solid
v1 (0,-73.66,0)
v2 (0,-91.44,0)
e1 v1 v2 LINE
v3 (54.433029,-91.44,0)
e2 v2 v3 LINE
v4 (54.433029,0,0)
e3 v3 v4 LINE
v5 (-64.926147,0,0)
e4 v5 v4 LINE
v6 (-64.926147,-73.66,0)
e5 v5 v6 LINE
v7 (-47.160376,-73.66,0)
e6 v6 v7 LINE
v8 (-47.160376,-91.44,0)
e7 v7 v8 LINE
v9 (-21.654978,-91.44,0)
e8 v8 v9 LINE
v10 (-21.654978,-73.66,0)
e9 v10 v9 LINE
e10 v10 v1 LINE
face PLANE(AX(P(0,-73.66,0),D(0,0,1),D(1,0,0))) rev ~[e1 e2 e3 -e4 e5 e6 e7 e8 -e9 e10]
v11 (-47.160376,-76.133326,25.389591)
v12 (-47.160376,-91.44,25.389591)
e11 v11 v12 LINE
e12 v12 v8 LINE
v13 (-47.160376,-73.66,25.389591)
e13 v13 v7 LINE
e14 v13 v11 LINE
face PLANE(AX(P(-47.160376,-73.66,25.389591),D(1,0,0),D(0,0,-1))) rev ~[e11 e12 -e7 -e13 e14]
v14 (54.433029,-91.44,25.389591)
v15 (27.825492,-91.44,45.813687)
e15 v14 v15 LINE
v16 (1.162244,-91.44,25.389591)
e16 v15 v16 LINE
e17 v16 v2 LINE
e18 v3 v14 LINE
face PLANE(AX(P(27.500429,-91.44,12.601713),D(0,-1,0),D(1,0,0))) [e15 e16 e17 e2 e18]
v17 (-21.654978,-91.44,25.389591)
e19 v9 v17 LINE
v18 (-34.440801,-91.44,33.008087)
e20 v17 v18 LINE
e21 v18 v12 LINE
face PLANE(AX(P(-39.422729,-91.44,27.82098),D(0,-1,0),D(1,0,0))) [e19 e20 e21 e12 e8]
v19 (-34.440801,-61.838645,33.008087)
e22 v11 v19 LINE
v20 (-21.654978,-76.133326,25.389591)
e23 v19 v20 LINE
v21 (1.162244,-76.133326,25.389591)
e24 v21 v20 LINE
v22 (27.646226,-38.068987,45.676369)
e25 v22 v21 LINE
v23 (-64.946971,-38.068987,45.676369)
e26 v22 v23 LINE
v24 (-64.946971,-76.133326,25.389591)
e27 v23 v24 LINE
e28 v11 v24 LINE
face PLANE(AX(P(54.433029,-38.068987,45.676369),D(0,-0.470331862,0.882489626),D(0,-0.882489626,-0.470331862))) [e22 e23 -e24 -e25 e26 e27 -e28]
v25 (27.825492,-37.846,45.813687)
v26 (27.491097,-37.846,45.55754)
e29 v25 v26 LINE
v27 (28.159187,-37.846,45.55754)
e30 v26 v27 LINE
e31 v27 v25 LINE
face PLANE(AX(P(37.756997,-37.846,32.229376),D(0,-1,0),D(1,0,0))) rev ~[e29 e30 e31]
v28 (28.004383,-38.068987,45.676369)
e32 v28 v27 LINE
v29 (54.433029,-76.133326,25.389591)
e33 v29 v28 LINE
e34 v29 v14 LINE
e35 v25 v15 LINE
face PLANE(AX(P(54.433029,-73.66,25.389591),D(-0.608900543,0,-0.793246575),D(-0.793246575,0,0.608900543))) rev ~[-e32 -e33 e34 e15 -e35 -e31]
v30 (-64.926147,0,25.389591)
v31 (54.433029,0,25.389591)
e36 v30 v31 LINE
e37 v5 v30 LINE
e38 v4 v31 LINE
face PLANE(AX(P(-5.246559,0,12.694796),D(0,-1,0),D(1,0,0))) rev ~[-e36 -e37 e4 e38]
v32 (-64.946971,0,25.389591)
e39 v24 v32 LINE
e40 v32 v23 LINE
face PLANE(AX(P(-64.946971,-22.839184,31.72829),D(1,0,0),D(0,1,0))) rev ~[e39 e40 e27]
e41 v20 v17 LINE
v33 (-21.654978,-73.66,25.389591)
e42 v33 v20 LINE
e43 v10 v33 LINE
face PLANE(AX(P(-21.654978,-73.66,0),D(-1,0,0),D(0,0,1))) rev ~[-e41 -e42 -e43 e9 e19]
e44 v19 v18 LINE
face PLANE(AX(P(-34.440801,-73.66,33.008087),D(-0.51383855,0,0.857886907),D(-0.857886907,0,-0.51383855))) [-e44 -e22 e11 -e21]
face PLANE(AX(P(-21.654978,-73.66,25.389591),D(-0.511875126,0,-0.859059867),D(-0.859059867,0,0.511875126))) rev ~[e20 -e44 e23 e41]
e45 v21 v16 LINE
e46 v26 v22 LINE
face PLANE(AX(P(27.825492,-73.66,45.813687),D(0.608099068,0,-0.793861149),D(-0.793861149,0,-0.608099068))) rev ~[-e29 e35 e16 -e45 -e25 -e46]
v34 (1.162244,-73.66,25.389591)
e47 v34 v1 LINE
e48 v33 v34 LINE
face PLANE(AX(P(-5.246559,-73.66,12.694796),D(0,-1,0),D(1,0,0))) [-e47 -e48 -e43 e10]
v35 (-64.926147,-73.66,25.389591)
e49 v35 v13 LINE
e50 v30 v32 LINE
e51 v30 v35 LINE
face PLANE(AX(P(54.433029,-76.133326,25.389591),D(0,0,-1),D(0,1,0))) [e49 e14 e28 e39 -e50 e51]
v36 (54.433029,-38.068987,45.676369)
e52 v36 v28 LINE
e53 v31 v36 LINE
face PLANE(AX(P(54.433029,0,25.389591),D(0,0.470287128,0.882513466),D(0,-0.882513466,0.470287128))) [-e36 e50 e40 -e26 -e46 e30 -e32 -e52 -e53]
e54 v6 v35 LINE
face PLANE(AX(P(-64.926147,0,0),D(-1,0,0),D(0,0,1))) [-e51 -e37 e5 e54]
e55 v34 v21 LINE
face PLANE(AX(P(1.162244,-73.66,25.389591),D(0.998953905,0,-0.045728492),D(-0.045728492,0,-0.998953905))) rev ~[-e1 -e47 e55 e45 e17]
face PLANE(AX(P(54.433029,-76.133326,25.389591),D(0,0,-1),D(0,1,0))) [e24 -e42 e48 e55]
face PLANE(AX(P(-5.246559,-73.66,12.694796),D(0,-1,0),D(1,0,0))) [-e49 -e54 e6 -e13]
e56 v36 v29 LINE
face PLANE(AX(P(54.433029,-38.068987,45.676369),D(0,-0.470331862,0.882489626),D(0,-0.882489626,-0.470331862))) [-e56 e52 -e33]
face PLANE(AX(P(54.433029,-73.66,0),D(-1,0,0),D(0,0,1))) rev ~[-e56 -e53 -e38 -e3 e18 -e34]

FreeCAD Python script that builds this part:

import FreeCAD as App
import Part
import Sketcher
from FreeCAD import Vector
Q = App.Units.Quantity

doc = App.newDocument("Part")
body = doc.addObject("PartDesign::Body", "Body")

# Sketch on XZ plane
sketch1 = body.newObject("Sketcher::SketchObject", "Sketch")
sketch1.AttachmentSupport = (doc.getObject("XZ_Plane"), [""])
sketch1.MapMode = "FlatFace"
sketch1.addGeometry([
    Part.LineSegment(Vector(-65, 25, 0), Vector(-65, 0, 0)),
    Part.LineSegment(Vector(-65, 0, 0), Vector(54, 0, 0)),
    Part.LineSegment(Vector(54, 0, 0), Vector(54, 25, 0)),
    Part.LineSegment(Vector(54, 25, 0), Vector(-65, 25, 0)),
], False)
sketch1.addConstraint([
    Sketcher.Constraint("Coincident", 0, 2, 1, 1),
    Sketcher.Constraint("Coincident", 1, 2, 2, 1),
    Sketcher.Constraint("Coincident", 2, 2, 3, 1),
    Sketcher.Constraint("Coincident", 3, 2, 0, 1),
    Sketcher.Constraint("Vertical", 0),
    Sketcher.Constraint("Horizontal", 1),
    Sketcher.Constraint("Vertical", 2),
    Sketcher.Constraint("Horizontal", 3),
    Sketcher.Constraint("PointOnObject", 0, 2, -1),
    Sketcher.Constraint("DistanceY", 0, 2, 0, 1, Q("25.389591 mm")),
    Sketcher.Constraint("DistanceX", 1, 1, 1, 2, Q("119.359177 mm")),
    Sketcher.Constraint("DistanceX", -1, 1, 1, 2, Q("54.433029 mm")),
])
pad1 = body.newObject("PartDesign::Pad", "Pad")
pad1.Profile = sketch1
pad1.Length = Q("2.9 in")

# Sketch on YZ plane
sketch2 = body.newObject("Sketcher::SketchObject", "Sketch001")
sketch2.AttachmentSupport = (doc.getObject("YZ_Plane"), [""])
sketch2.MapMode = "FlatFace"
sketch2.AttachmentOffset = App.Placement(Vector(0, 0, 54.433029), App.Rotation())
sketch2.addGeometry([
    Part.LineSegment(Vector(0, 25, 0), Vector(-38, 46, 0)),
    Part.LineSegment(Vector(-38, 46, 0), Vector(-76, 25, 0)),
    Part.LineSegment(Vector(-76, 25, 0), Vector(0, 25, 0)),
], False)
sketch2.addConstraint([
    Sketcher.Constraint("Coincident", 0, 2, 1, 1),
    Sketcher.Constraint("Coincident", 1, 2, 2, 1),
    Sketcher.Constraint("Coincident", 2, 2, 0, 1),
    Sketcher.Constraint("Horizontal", 2),
    Sketcher.Constraint("PointOnObject", 2, 2, -2),
    Sketcher.Constraint("Distance", 1, Q("43.132902 mm")),
    Sketcher.Constraint("DistanceX", 2, 1, 2, 2, Q("76.133326 mm")),
    Sketcher.Constraint("DistanceY", -1, 1, 0, 2, Q("45.676369 mm")),
    Sketcher.Constraint("DistanceY", -1, 1, 1, 2, Q("25.389591 mm")),
])
pad2 = body.newObject("PartDesign::Pad", "Pad001")
pad2.Profile = sketch2
pad2.Length = Q("4.7 in")
pad2.Reversed = True

# Sketch on XZ plane
sketch3 = body.newObject("Sketcher::SketchObject", "Sketch002")
sketch3.AttachmentSupport = (doc.getObject("XZ_Plane"), [""])
sketch3.MapMode = "FlatFace"
sketch3.AttachmentOffset = App.Placement(Vector(0, 0, 2.9 * 25.4), App.Rotation())
sketch3.addGeometry([
    Part.LineSegment(Vector(-22, 25, 0), Vector(-34, 33, 0)),  # 0
    Part.LineSegment(Vector(-34, 33, 0), Vector(-47, 25, 0)),  # 1
    Part.LineSegment(Vector(-47, 25, 0), Vector(-22, 25, 0)),  # 2
    Part.LineSegment(Vector(54, 25, 0), Vector(28, 46, 0)),  # 3
    Part.LineSegment(Vector(28, 46, 0), Vector(1, 25, 0)),  # 4
    Part.LineSegment(Vector(1, 25, 0), Vector(54, 25, 0)),  # 5
], False)
sketch3.addConstraint([
    Sketcher.Constraint("Coincident", 0, 2, 1, 1),
    Sketcher.Constraint("Coincident", 1, 2, 2, 1),
    Sketcher.Constraint("Coincident", 2, 2, 0, 1),
    Sketcher.Constraint("Coincident", 3, 2, 4, 1),
    Sketcher.Constraint("Coincident", 4, 2, 5, 1),
    Sketcher.Constraint("Coincident", 5, 2, 3, 1),
    Sketcher.Constraint("Horizontal", 2),
    Sketcher.Constraint("Horizontal", 5),
    Sketcher.Constraint("Horizontal", 2, 2, 4, 2),
    Sketcher.Constraint("DistanceX", 0, 2, -1, 1, Q("34.440801 mm")),
    Sketcher.Constraint("DistanceY", 0, 2, 3, 2, Q("12.8056 mm")),
    Sketcher.Constraint("Distance", 3, Q("33.542581 mm")),
    Sketcher.Constraint("Distance", 4, Q("33.58679 mm")),
    Sketcher.Constraint("DistanceX", 2, 1, 2, 2, Q("25.505397 mm")),
    Sketcher.Constraint("DistanceX", 5, 1, 5, 2, Q("53.270786 mm")),
    Sketcher.Constraint("DistanceY", -1, 1, 1, 2, Q("25.389591 mm")),
    Sketcher.Constraint("DistanceX", 2, 2, -1, 1, Q("21.654978 mm")),
    Sketcher.Constraint("DistanceX", -1, 1, 3, 2, Q("27.825492 mm")),
])
pad3 = body.newObject("PartDesign::Pad", "Pad002")
pad3.Profile = sketch3
pad3.Length = Q("1.41 in")
pad3.Reversed = True

# Sketch on XZ plane
sketch4 = body.newObject("Sketcher::SketchObject", "Sketch003")
sketch4.AttachmentSupport = (doc.getObject("XZ_Plane"), [""])
sketch4.MapMode = "FlatFace"
sketch4.AttachmentOffset = App.Placement(Vector(0, 0, 2.9 * 25.4), App.Rotation())
sketch4.addGeometry([
    Part.LineSegment(Vector(54, 0, 0), Vector(54, 25, 0)),  # 0
    Part.LineSegment(Vector(54, 25, 0), Vector(28, 46, 0)),  # 1
    Part.LineSegment(Vector(28, 46, 0), Vector(1, 25, 0)),  # 2
    Part.LineSegment(Vector(1, 25, 0), Vector(0, 0, 0)),  # 3
    Part.LineSegment(Vector(0, 0, 0), Vector(54, 0, 0)),  # 4
    Part.LineSegment(Vector(-34, 33, 0), Vector(-47, 25, 0)),  # 5
    Part.LineSegment(Vector(-47, 25, 0), Vector(-47, 0, 0)),  # 6
    Part.LineSegment(Vector(-47, 0, 0), Vector(-22, 0, 0)),  # 7
    Part.LineSegment(Vector(-22, 0, 0), Vector(-22, 25, 0)),  # 8
    Part.LineSegment(Vector(-22, 25, 0), Vector(-34, 33, 0)),  # 9
], False)
sketch4.addConstraint([
    Sketcher.Constraint("Coincident", 0, 2, 1, 1),
    Sketcher.Constraint("Coincident", 1, 2, 2, 1),
    Sketcher.Constraint("Coincident", 2, 2, 3, 1),
    Sketcher.Constraint("Coincident", 3, 2, 4, 1),
    Sketcher.Constraint("Coincident", 4, 2, 0, 1),
    Sketcher.Constraint("Coincident", 5, 2, 6, 1),
    Sketcher.Constraint("Coincident", 6, 2, 7, 1),
    Sketcher.Constraint("Coincident", 7, 2, 8, 1),
    Sketcher.Constraint("Coincident", 8, 2, 9, 1),
    Sketcher.Constraint("Coincident", 9, 2, 5, 1),
    Sketcher.Constraint("Vertical", 0),
    Sketcher.Constraint("Horizontal", 4),
    Sketcher.Constraint("Vertical", 6),
    Sketcher.Constraint("Horizontal", 7),
    Sketcher.Constraint("Vertical", 8),
    Sketcher.Constraint("Coincident", 3, 2, -1, 1),
    Sketcher.Constraint("PointOnObject", 6, 2, -1),
    Sketcher.Constraint("Horizontal", 0, 2, 2, 2),
    Sketcher.Constraint("Horizontal", 2, 2, 5, 2),
    Sketcher.Constraint("Horizontal", 5, 2, 8, 2),
    Sketcher.Constraint("DistanceX", 4, 1, 4, 2, Q("54.433029 mm")),
    Sketcher.Constraint("DistanceY", 0, 1, 0, 2, Q("25.389591 mm")),
    Sketcher.Constraint("DistanceX", 9, 2, -1, 1, Q("34.440801 mm")),
    Sketcher.Constraint("Distance", 1, Q("33.542581 mm")),
    Sketcher.Constraint("Distance", 2, Q("33.58679 mm")),
    Sketcher.Constraint("Distance", 3, Q("25.416179 mm")),
    Sketcher.Constraint("DistanceX", 7, 1, 7, 2, Q("25.505397 mm")),
    Sketcher.Constraint("DistanceX", 7, 2, -1, 1, Q("21.654978 mm")),
    Sketcher.Constraint("Distance", 5, Q("14.826634 mm")),
])
pad4 = body.newObject("PartDesign::Pad", "Pad003")
pad4.Profile = sketch4
pad4.Length = Q("0.7 in")

doc.recompute()
